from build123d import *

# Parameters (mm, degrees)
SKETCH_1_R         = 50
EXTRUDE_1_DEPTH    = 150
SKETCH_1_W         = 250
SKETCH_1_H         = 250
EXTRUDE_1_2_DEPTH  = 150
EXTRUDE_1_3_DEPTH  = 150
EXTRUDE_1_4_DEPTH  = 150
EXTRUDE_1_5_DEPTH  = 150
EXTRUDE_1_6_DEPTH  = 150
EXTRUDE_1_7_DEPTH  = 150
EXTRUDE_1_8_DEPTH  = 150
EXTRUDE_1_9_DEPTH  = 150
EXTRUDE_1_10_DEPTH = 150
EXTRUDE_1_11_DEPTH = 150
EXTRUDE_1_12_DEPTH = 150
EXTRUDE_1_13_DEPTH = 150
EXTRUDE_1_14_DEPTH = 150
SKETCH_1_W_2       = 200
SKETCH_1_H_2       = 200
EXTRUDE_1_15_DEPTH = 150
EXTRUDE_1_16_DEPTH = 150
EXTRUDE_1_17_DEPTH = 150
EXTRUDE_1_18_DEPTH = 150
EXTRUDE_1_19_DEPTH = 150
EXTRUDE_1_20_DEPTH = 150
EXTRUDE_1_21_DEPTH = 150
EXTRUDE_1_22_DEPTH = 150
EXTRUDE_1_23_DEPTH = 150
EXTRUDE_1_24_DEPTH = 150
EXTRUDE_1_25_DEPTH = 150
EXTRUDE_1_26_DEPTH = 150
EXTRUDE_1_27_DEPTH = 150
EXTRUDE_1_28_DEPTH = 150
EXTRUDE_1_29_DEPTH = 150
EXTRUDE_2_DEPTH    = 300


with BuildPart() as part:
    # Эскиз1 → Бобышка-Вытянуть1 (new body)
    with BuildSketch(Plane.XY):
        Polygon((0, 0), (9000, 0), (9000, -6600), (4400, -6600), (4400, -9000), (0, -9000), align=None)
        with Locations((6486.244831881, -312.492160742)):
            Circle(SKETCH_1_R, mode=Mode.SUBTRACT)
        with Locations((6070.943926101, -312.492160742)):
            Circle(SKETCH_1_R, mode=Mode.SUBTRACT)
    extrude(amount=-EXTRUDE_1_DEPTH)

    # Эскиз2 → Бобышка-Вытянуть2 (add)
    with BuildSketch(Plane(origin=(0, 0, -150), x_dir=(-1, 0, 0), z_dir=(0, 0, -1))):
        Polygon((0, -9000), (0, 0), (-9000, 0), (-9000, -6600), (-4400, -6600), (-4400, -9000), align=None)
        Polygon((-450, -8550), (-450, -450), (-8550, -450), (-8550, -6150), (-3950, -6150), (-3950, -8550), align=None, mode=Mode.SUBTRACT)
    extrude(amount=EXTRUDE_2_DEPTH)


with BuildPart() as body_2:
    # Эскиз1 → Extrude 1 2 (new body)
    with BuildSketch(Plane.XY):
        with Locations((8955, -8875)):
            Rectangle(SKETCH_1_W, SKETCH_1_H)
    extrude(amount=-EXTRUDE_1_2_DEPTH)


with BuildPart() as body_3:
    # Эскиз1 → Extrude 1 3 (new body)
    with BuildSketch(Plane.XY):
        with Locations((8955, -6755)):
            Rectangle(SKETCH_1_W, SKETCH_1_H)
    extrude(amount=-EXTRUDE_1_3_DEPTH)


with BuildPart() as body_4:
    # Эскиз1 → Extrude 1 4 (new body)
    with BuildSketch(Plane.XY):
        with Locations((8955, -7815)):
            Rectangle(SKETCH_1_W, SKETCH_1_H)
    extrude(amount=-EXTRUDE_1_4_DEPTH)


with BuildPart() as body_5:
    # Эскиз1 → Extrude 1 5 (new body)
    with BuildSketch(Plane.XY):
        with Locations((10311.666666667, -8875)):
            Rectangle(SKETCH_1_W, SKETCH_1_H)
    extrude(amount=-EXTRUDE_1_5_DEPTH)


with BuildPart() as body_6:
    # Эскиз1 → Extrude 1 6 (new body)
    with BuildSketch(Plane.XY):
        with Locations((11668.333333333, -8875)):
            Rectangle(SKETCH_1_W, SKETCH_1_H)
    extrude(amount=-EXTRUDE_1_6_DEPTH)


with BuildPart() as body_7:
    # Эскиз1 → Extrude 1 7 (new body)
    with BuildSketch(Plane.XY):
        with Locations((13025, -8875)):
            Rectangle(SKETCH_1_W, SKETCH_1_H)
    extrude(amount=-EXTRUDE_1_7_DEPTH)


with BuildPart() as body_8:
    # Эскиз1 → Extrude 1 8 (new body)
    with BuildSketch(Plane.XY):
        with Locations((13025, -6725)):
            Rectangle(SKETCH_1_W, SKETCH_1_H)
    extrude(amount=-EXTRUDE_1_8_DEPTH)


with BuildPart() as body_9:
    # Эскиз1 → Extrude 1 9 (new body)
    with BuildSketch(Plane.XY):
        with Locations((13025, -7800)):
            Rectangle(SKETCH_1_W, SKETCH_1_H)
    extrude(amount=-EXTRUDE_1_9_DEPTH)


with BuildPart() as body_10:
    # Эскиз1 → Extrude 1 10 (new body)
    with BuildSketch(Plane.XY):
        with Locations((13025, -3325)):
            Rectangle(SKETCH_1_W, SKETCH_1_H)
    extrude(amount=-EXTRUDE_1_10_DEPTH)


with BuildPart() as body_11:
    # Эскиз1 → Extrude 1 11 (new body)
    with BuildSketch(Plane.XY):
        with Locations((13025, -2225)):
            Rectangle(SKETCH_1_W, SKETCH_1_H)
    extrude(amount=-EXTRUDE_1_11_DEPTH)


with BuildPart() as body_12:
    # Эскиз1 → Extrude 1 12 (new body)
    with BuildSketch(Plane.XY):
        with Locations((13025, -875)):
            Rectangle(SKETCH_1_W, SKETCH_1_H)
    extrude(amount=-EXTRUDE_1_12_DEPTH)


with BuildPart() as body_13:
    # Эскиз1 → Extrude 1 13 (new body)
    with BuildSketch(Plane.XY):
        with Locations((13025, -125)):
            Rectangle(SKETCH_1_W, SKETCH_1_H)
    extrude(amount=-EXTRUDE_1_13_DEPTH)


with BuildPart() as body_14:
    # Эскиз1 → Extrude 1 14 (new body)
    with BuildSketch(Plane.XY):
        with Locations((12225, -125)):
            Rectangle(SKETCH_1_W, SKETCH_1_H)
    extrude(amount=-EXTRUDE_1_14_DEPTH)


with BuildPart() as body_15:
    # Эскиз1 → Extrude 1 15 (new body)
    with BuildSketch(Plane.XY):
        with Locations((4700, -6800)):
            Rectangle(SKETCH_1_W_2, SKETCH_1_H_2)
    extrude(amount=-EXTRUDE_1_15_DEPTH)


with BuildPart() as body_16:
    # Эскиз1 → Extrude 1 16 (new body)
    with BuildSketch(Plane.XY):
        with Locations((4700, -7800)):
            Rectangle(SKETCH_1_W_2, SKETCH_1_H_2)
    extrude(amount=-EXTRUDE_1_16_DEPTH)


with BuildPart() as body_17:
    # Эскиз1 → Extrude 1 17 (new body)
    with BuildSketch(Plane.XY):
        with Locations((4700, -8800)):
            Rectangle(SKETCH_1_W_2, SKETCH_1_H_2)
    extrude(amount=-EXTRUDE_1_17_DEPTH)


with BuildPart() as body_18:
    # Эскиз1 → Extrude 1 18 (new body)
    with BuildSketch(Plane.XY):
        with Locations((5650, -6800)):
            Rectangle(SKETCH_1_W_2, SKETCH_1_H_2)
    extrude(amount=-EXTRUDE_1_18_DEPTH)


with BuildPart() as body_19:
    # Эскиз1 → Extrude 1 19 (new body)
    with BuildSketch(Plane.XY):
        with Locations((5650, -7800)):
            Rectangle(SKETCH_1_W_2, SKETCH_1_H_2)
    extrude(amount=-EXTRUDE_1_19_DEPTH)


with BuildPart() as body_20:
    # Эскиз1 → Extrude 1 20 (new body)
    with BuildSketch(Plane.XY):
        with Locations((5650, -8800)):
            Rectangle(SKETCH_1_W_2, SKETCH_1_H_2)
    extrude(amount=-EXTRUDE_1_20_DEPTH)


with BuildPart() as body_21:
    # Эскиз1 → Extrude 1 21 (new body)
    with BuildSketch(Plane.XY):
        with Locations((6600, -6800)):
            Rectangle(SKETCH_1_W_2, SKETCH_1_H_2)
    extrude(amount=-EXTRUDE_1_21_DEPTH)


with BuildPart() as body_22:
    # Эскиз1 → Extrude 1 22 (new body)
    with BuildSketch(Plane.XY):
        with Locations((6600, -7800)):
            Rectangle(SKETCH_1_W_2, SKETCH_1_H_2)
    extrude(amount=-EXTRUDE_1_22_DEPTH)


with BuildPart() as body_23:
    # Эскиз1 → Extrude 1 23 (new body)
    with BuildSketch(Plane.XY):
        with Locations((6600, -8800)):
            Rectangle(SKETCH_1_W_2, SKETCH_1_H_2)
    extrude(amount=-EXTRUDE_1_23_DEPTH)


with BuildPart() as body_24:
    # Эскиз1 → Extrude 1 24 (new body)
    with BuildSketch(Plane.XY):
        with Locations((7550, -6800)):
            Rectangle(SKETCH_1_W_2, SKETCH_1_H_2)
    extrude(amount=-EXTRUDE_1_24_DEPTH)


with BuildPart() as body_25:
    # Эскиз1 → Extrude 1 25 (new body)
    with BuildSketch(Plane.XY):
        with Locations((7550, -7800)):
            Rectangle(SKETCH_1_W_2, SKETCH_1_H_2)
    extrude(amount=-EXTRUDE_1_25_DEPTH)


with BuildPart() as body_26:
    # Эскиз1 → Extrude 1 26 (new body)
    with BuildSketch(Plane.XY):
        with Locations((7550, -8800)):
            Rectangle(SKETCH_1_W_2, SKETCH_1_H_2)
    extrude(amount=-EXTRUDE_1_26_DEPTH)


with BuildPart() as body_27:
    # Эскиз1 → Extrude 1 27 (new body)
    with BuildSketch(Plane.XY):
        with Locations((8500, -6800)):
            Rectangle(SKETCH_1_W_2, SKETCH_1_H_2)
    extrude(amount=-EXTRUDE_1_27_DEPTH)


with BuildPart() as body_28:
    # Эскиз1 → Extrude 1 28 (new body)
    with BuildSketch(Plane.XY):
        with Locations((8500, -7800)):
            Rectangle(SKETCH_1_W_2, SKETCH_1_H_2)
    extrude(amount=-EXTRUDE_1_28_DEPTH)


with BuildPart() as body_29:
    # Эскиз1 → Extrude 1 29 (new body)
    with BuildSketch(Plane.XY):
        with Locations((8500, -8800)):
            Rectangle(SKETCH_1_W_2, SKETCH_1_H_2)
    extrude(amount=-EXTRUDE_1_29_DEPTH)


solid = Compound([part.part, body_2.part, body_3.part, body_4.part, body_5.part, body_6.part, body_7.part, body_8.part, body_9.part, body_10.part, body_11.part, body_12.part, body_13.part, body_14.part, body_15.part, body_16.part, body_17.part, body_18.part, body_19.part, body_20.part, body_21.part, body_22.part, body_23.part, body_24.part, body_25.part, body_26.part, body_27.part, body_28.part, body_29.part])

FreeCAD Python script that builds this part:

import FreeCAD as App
import Part
import Sketcher

V = App.Vector


def add_polygon(sketch, points):
    """Adds a closed chain of lines whose ends are joined by coincident constraints."""
    first, n = sketch.GeometryCount, len(points)
    for a, b in zip(points, points[1:] + points[:1]):
        sketch.addGeometry(Part.LineSegment(App.Vector(*a, 0), App.Vector(*b, 0)), False)
    for i in range(n):
        sketch.addConstraint(Sketcher.Constraint("Coincident", first + i, 2, first + (i + 1) % n, 1))

doc = App.newDocument("Part")
body = doc.addObject("PartDesign::Body", "Body")

# Sketch on XY plane
sketch1 = body.newObject("Sketcher::SketchObject", "Sketch")
sketch1.AttachmentSupport = (doc.getObject("XY_Plane"), [""])
sketch1.MapMode = "FlatFace"
add_polygon(sketch1, [(9000, 0), (0, 0), (0, -9000), (4400, -9000), (4400, -6600), (9000, -6600)])  # lines 0-5
sketch1.addGeometry(Part.Circle(V(6486, -312, 0), V(0, 0, 1), 50), False)  # 6
sketch1.addGeometry(Part.Circle(V(6071, -312, 0), V(0, 0, 1), 50), False)  # 7
sketch1.addConstraint([
    Sketcher.Constraint("Horizontal", 0),
    Sketcher.Constraint("Vertical", 1),
    Sketcher.Constraint("Horizontal", 2),
    Sketcher.Constraint("Vertical", 3),
    Sketcher.Constraint("Horizontal", 4),
    Sketcher.Constraint("Vertical", 5),
    Sketcher.Constraint("Coincident", 0, 2, -1, 1),
    Sketcher.Constraint("Equal", 6, 7),
    Sketcher.Constraint("Horizontal", 6, 3, 7, 3),
    Sketcher.Constraint("Equal", 0, 1),
    Sketcher.Constraint("Diameter", 6, 100.0),
    Sketcher.Constraint("DistanceX", 0, 2, 0, 1, 9000.0),
    Sketcher.Constraint("DistanceX", 2, 1, 2, 2, 4400.0),
    Sketcher.Constraint("DistanceY", 3, 1, 3, 2, 2400.0),
    Sketcher.Constraint("DistanceX", -1, 1, 6, 3, 6486.244832),
    Sketcher.Constraint("DistanceY", 6, 3, -1, 1, 312.492161),
    Sketcher.Constraint("DistanceX", -1, 1, 7, 3, 6070.943926),
])
pad1 = body.newObject("PartDesign::Pad", "Pad")
pad1.Profile = sketch1
pad1.Length = 150
pad1.Reversed = True

# Sketch on XY plane
sketch2 = body.newObject("Sketcher::SketchObject", "Sketch001")
sketch2.AttachmentSupport = (doc.getObject("XY_Plane"), [""])
sketch2.MapMode = "FlatFace"
sketch2.AttachmentOffset = App.Placement(V(0, 0, -150), App.Rotation())
add_polygon(sketch2, [(0, -9000), (0, 0), (9000, 0), (9000, -6600), (4400, -6600), (4400, -9000)])  # lines 0-5
add_polygon(sketch2, [(450, -450), (450, -8550), (3950, -8550), (3950, -6150), (8550, -6150), (8550, -450)])  # lines 6-11
sketch2.addConstraint([
    Sketcher.Constraint("Vertical", 0),
    Sketcher.Constraint("Horizontal", 1),
    Sketcher.Constraint("Vertical", 2),
    Sketcher.Constraint("Horizontal", 3),
    Sketcher.Constraint("Vertical", 4),
    Sketcher.Constraint("Horizontal", 5),
    Sketcher.Constraint("Vertical", 6),
    Sketcher.Constraint("Horizontal", 7),
    Sketcher.Constraint("Vertical", 8),
    Sketcher.Constraint("Horizontal", 9),
    Sketcher.Constraint("Vertical", 10),
    Sketcher.Constraint("Horizontal", 11),
    Sketcher.Constraint("Coincident", 0, 2, -1, 1),
    Sketcher.Constraint("Equal", 3, 9),
    Sketcher.Constraint("Equal", 1, 0),
    Sketcher.Constraint("Equal", 11, 6),
    Sketcher.Constraint("Equal", 4, 8),
    Sketcher.Constraint("DistanceX", 1, 1, 1, 2, 9000.0),
    Sketcher.Constraint("DistanceX", 3, 2, 3, 1, 4600.0),
    Sketcher.Constraint("DistanceX", 7, 1, 7, 2, 3500.0),
    Sketcher.Constraint("DistanceY", 2, 2, 2, 1, 6600.0),
    Sketcher.Constraint("DistanceX", -1, 1, 6, 2, 450.0),
    Sketcher.Constraint("DistanceY", 6, 2, -1, 1, 8550.0),
])
pad2 = body.newObject("PartDesign::Pad", "Pad001")
pad2.Profile = sketch2
pad2.Length = 300
pad2.Reversed = True
body2 = doc.addObject("PartDesign::Body", "Body001")

# Sketch on XY plane
sketch3 = body2.newObject("Sketcher::SketchObject", "Sketch002")
sketch3.AttachmentSupport = (doc.getObject("XY_Plane001"), [""])
sketch3.MapMode = "FlatFace"
add_polygon(sketch3, [(8830, -8750), (8830, -9000), (9080, -9000), (9080, -8750)])  # lines 0-3
sketch3.addConstraint([
    Sketcher.Constraint("Vertical", 0),
    Sketcher.Constraint("Horizontal", 1),
    Sketcher.Constraint("Vertical", 2),
    Sketcher.Constraint("Horizontal", 3),
    Sketcher.Constraint("Equal", 3, 0),
    Sketcher.Constraint("DistanceX", 1, 1, 1, 2, 250.0),
    Sketcher.Constraint("DistanceX", -1, 1, 0, 2, 8830.0),
    Sketcher.Constraint("DistanceY", 0, 2, -1, 1, 9000.0),
])
pad3 = body2.newObject("PartDesign::Pad", "Pad002")
pad3.Profile = sketch3
pad3.Length = 150
pad3.Reversed = True
body3 = doc.addObject("PartDesign::Body", "Body002")

# Sketch on XY plane
sketch4 = body3.newObject("Sketcher::SketchObject", "Sketch003")
sketch4.AttachmentSupport = (doc.getObject("XY_Plane002"), [""])
sketch4.MapMode = "FlatFace"
add_polygon(sketch4, [(8830, -6630), (8830, -6880), (9080, -6880), (9080, -6630)])  # lines 0-3
sketch4.addConstraint([
    Sketcher.Constraint("Vertical", 0),
    Sketcher.Constraint("Horizontal", 1),
    Sketcher.Constraint("Vertical", 2),
    Sketcher.Constraint("Horizontal", 3),
    Sketcher.Constraint("Equal", 3, 0),
    Sketcher.Constraint("DistanceX", 1, 1, 1, 2, 250.0),
    Sketcher.Constraint("DistanceX", -1, 1, 0, 2, 8830.0),
    Sketcher.Constraint("DistanceY", 0, 2, -1, 1, 6880.0),
])
pad4 = body3.newObject("PartDesign::Pad", "Pad003")
pad4.Profile = sketch4
pad4.Length = 150
pad4.Reversed = True
body4 = doc.addObject("PartDesign::Body", "Body003")

# Sketch on XY plane
sketch5 = body4.newObject("Sketcher::SketchObject", "Sketch004")
sketch5.AttachmentSupport = (doc.getObject("XY_Plane003"), [""])
sketch5.MapMode = "FlatFace"
add_polygon(sketch5, [(8830, -7690), (8830, -7940), (9080, -7940), (9080, -7690)])  # lines 0-3
sketch5.addConstraint([
    Sketcher.Constraint("Vertical", 0),
    Sketcher.Constraint("Horizontal", 1),
    Sketcher.Constraint("Vertical", 2),
    Sketcher.Constraint("Horizontal", 3),
    Sketcher.Constraint("Equal", 3, 0),
    Sketcher.Constraint("DistanceX", 1, 1, 1, 2, 250.0),
    Sketcher.Constraint("DistanceX", -1, 1, 0, 2, 8830.0),
    Sketcher.Constraint("DistanceY", 0, 2, -1, 1, 7940.0),
])
pad5 = body4.newObject("PartDesign::Pad", "Pad004")
pad5.Profile = sketch5
pad5.Length = 150
pad5.Reversed = True
body5 = doc.addObject("PartDesign::Body", "Body004")

# Sketch on XY plane
sketch6 = body5.newObject("Sketcher::SketchObject", "Sketch005")
sketch6.AttachmentSupport = (doc.getObject("XY_Plane004"), [""])
sketch6.MapMode = "FlatFace"
add_polygon(sketch6, [(10187, -8750), (10187, -9000), (10437, -9000), (10437, -8750)])  # lines 0-3
sketch6.addConstraint([
    Sketcher.Constraint("Vertical", 0),
    Sketcher.Constraint("Horizontal", 1),
    Sketcher.Constraint("Vertical", 2),
    Sketcher.Constraint("Horizontal", 3),
    Sketcher.Constraint("Equal", 3, 0),
    Sketcher.Constraint("DistanceX", 1, 1, 1, 2, 250.0),
    Sketcher.Constraint("DistanceY", 0, 2, -1, 1, 9000.0),
    Sketcher.Constraint("DistanceX", -1, 1, 0, 2, 10186.666667),
])
pad6 = body5.newObject("PartDesign::Pad", "Pad005")
pad6.Profile = sketch6
pad6.Length = 150
pad6.Reversed = True
body6 = doc.addObject("PartDesign::Body", "Body005")

# Sketch on XY plane
sketch7 = body6.newObject("Sketcher::SketchObject", "Sketch006")
sketch7.AttachmentSupport = (doc.getObject("XY_Plane005"), [""])
sketch7.MapMode = "FlatFace"
add_polygon(sketch7, [(11543, -8750), (11543, -9000), (11793, -9000), (11793, -8750)])  # lines 0-3
sketch7.addConstraint([
    Sketcher.Constraint("Vertical", 0),
    Sketcher.Constraint("Horizontal", 1),
    Sketcher.Constraint("Vertical", 2),
    Sketcher.Constraint("Horizontal", 3),
    Sketcher.Constraint("Equal", 3, 0),
    Sketcher.Constraint("DistanceX", 1, 1, 1, 2, 250.0),
    Sketcher.Constraint("DistanceY", 0, 2, -1, 1, 9000.0),
    Sketcher.Constraint("DistanceX", -1, 1, 0, 2, 11543.333333),
])
pad7 = body6.newObject("PartDesign::Pad", "Pad006")
pad7.Profile = sketch7
pad7.Length = 150
pad7.Reversed = True
body7 = doc.addObject("PartDesign::Body", "Body006")

# Sketch on XY plane
sketch8 = body7.newObject("Sketcher::SketchObject", "Sketch007")
sketch8.AttachmentSupport = (doc.getObject("XY_Plane006"), [""])
sketch8.MapMode = "FlatFace"
add_polygon(sketch8, [(12900, -8750), (12900, -9000), (13150, -9000), (13150, -8750)])  # lines 0-3
sketch8.addConstraint([
    Sketcher.Constraint("Vertical", 0),
    Sketcher.Constraint("Horizontal", 1),
    Sketcher.Constraint("Vertical", 2),
    Sketcher.Constraint("Horizontal", 3),
    Sketcher.Constraint("Equal", 3, 0),
    Sketcher.Constraint("DistanceX", 1, 1, 1, 2, 250.0),
    Sketcher.Constraint("DistanceX", -1, 1, 0, 2, 12900.0),
    Sketcher.Constraint("DistanceY", 0, 2, -1, 1, 9000.0),
])
pad8 = body7.newObject("PartDesign::Pad", "Pad007")
pad8.Profile = sketch8
pad8.Length = 150
pad8.Reversed = True
body8 = doc.addObject("PartDesign::Body", "Body007")

# Sketch on XY plane
sketch9 = body8.newObject("Sketcher::SketchObject", "Sketch008")
sketch9.AttachmentSupport = (doc.getObject("XY_Plane007"), [""])
sketch9.MapMode = "FlatFace"
add_polygon(sketch9, [(12900, -6600), (12900, -6850), (13150, -6850), (13150, -6600)])  # lines 0-3
sketch9.addConstraint([
    Sketcher.Constraint("Vertical", 0),
    Sketcher.Constraint("Horizontal", 1),
    Sketcher.Constraint("Vertical", 2),
    Sketcher.Constraint("Horizontal", 3),
    Sketcher.Constraint("Equal", 3, 0),
    Sketcher.Constraint("DistanceX", 1, 1, 1, 2, 250.0),
    Sketcher.Constraint("DistanceX", -1, 1, 0, 2, 12900.0),
    Sketcher.Constraint("DistanceY", 0, 2, -1, 1, 6850.0),
])
pad9 = body8.newObject("PartDesign::Pad", "Pad008")
pad9.Profile = sketch9
pad9.Length = 150
pad9.Reversed = True
body9 = doc.addObject("PartDesign::Body", "Body008")

# Sketch on XY plane
sketch10 = body9.newObject("Sketcher::SketchObject", "Sketch009")
sketch10.AttachmentSupport = (doc.getObject("XY_Plane008"), [""])
sketch10.MapMode = "FlatFace"
add_polygon(sketch10, [(12900, -7675), (12900, -7925), (13150, -7925), (13150, -7675)])  # lines 0-3
sketch10.addConstraint([
    Sketcher.Constraint("Vertical", 0),
    Sketcher.Constraint("Horizontal", 1),
    Sketcher.Constraint("Vertical", 2),
    Sketcher.Constraint("Horizontal", 3),
    Sketcher.Constraint("Equal", 3, 0),
    Sketcher.Constraint("DistanceX", 1, 1, 1, 2, 250.0),
    Sketcher.Constraint("DistanceX", -1, 1, 0, 2, 12900.0),
    Sketcher.Constraint("DistanceY", 0, 2, -1, 1, 7925.0),
])
pad10 = body9.newObject("PartDesign::Pad", "Pad009")
pad10.Profile = sketch10
pad10.Length = 150
pad10.Reversed = True
body10 = doc.addObject("PartDesign::Body", "Body009")

# Sketch on XY plane
sketch11 = body10.newObject("Sketcher::SketchObject", "Sketch010")
sketch11.AttachmentSupport = (doc.getObject("XY_Plane009"), [""])
sketch11.MapMode = "FlatFace"
add_polygon(sketch11, [(12900, -3200), (12900, -3450), (13150, -3450), (13150, -3200)])  # lines 0-3
sketch11.addConstraint([
    Sketcher.Constraint("Vertical", 0),
    Sketcher.Constraint("Horizontal", 1),
    Sketcher.Constraint("Vertical", 2),
    Sketcher.Constraint("Horizontal", 3),
    Sketcher.Constraint("Equal", 3, 0),
    Sketcher.Constraint("DistanceX", 1, 1, 1, 2, 250.0),
    Sketcher.Constraint("DistanceX", -1, 1, 0, 2, 12900.0),
    Sketcher.Constraint("DistanceY", 0, 2, -1, 1, 3450.0),
])
pad11 = body10.newObject("PartDesign::Pad", "Pad010")
pad11.Profile = sketch11
pad11.Length = 150
pad11.Reversed = True
body11 = doc.addObject("PartDesign::Body", "Body010")

# Sketch on XY plane
sketch12 = body11.newObject("Sketcher::SketchObject", "Sketch011")
sketch12.AttachmentSupport = (doc.getObject("XY_Plane010"), [""])
sketch12.MapMode = "FlatFace"
add_polygon(sketch12, [(12900, -2100), (12900, -2350), (13150, -2350), (13150, -2100)])  # lines 0-3
sketch12.addConstraint([
    Sketcher.Constraint("Vertical", 0),
    Sketcher.Constraint("Horizontal", 1),
    Sketcher.Constraint("Vertical", 2),
    Sketcher.Constraint("Horizontal", 3),
    Sketcher.Constraint("Equal", 3, 0),
    Sketcher.Constraint("DistanceX", 1, 1, 1, 2, 250.0),
    Sketcher.Constraint("DistanceX", -1, 1, 0, 2, 12900.0),
    Sketcher.Constraint("DistanceY", 0, 2, -1, 1, 2350.0),
])
pad12 = body11.newObject("PartDesign::Pad", "Pad011")
pad12.Profile = sketch12
pad12.Length = 150
pad12.Reversed = True
body12 = doc.addObject("PartDesign::Body", "Body011")

# Sketch on XY plane
sketch13 = body12.newObject("Sketcher::SketchObject", "Sketch012")
sketch13.AttachmentSupport = (doc.getObject("XY_Plane011"), [""])
sketch13.MapMode = "FlatFace"
add_polygon(sketch13, [(12900, -750), (12900, -1000), (13150, -1000), (13150, -750)])  # lines 0-3
sketch13.addConstraint([
    Sketcher.Constraint("Vertical", 0),
    Sketcher.Constraint("Horizontal", 1),
    Sketcher.Constraint("Vertical", 2),
    Sketcher.Constraint("Horizontal", 3),
    Sketcher.Constraint("Equal", 3, 0),
    Sketcher.Constraint("DistanceX", 1, 1, 1, 2, 250.0),
    Sketcher.Constraint("DistanceX", -1, 1, 0, 2, 12900.0),
    Sketcher.Constraint("DistanceY", 0, 2, -1, 1, 1000.0),
])
pad13 = body12.newObject("PartDesign::Pad", "Pad012")
pad13.Profile = sketch13
pad13.Length = 150
pad13.Reversed = True
body13 = doc.addObject("PartDesign::Body", "Body012")

# Sketch on XY plane
sketch14 = body13.newObject("Sketcher::SketchObject", "Sketch013")
sketch14.AttachmentSupport = (doc.getObject("XY_Plane012"), [""])
sketch14.MapMode = "FlatFace"
add_polygon(sketch14, [(12900, 0), (12900, -250), (13150, -250), (13150, 0)])  # lines 0-3
sketch14.addConstraint([
    Sketcher.Constraint("Vertical", 0),
    Sketcher.Constraint("Horizontal", 1),
    Sketcher.Constraint("Vertical", 2),
    Sketcher.Constraint("Horizontal", 3),
    Sketcher.Constraint("PointOnObject", 2, 2, -1),
    Sketcher.Constraint("Equal", 3, 0),
    Sketcher.Constraint("DistanceX", 1, 1, 1, 2, 250.0),
    Sketcher.Constraint("DistanceX", -1, 1, 0, 2, 12900.0),
])
pad14 = body13.newObject("PartDesign::Pad", "Pad013")
pad14.Profile = sketch14
pad14.Length = 150
pad14.Reversed = True
body14 = doc.addObject("PartDesign::Body", "Body013")

# Sketch on XY plane
sketch15 = body14.newObject("Sketcher::SketchObject", "Sketch014")
sketch15.AttachmentSupport = (doc.getObject("XY_Plane013"), [""])
sketch15.MapMode = "FlatFace"
add_polygon(sketch15, [(12100, 0), (12100, -250), (12350, -250), (12350, 0)])  # lines 0-3
sketch15.addConstraint([
    Sketcher.Constraint("Vertical", 0),
    Sketcher.Constraint("Horizontal", 1),
    Sketcher.Constraint("Vertical", 2),
    Sketcher.Constraint("Horizontal", 3),
    Sketcher.Constraint("PointOnObject", 2, 2, -1),
    Sketcher.Constraint("Equal", 3, 0),
    Sketcher.Constraint("DistanceX", 1, 1, 1, 2, 250.0),
    Sketcher.Constraint("DistanceX", -1, 1, 0, 2, 12100.0),
])
pad15 = body14.newObject("PartDesign::Pad", "Pad014")
pad15.Profile = sketch15
pad15.Length = 150
pad15.Reversed = True
body15 = doc.addObject("PartDesign::Body", "Body014")

# Sketch on XY plane
sketch16 = body15.newObject("Sketcher::SketchObject", "Sketch015")
sketch16.AttachmentSupport = (doc.getObject("XY_Plane014"), [""])
sketch16.MapMode = "FlatFace"
add_polygon(sketch16, [(4600, -6700), (4600, -6900), (4800, -6900), (4800, -6700)])  # lines 0-3
sketch16.addConstraint([
    Sketcher.Constraint("Vertical", 0),
    Sketcher.Constraint("Horizontal", 1),
    Sketcher.Constraint("Vertical", 2),
    Sketcher.Constraint("Horizontal", 3),
    Sketcher.Constraint("Equal", 3, 0),
    Sketcher.Constraint("DistanceX", 1, 1, 1, 2, 200.0),
    Sketcher.Constraint("DistanceX", -1, 1, 0, 2, 4600.0),
    Sketcher.Constraint("DistanceY", 0, 2, -1, 1, 6900.0),
])
pad16 = body15.newObject("PartDesign::Pad", "Pad015")
pad16.Profile = sketch16
pad16.Length = 150
pad16.Reversed = True
body16 = doc.addObject("PartDesign::Body", "Body015")

# Sketch on XY plane
sketch17 = body16.newObject("Sketcher::SketchObject", "Sketch016")
sketch17.AttachmentSupport = (doc.getObject("XY_Plane015"), [""])
sketch17.MapMode = "FlatFace"
add_polygon(sketch17, [(4600, -7700), (4600, -7900), (4800, -7900), (4800, -7700)])  # lines 0-3
sketch17.addConstraint([
    Sketcher.Constraint("Vertical", 0),
    Sketcher.Constraint("Horizontal", 1),
    Sketcher.Constraint("Vertical", 2),
    Sketcher.Constraint("Horizontal", 3),
    Sketcher.Constraint("Equal", 3, 0),
    Sketcher.Constraint("DistanceX", 1, 1, 1, 2, 200.0),
    Sketcher.Constraint("DistanceX", -1, 1, 0, 2, 4600.0),
    Sketcher.Constraint("DistanceY", 0, 2, -1, 1, 7900.0),
])
pad17 = body16.newObject("PartDesign::Pad", "Pad016")
pad17.Profile = sketch17
pad17.Length = 150
pad17.Reversed = True
body17 = doc.addObject("PartDesign::Body", "Body016")

# Sketch on XY plane
sketch18 = body17.newObject("Sketcher::SketchObject", "Sketch017")
sketch18.AttachmentSupport = (doc.getObject("XY_Plane016"), [""])
sketch18.MapMode = "FlatFace"
add_polygon(sketch18, [(4600, -8700), (4600, -8900), (4800, -8900), (4800, -8700)])  # lines 0-3
sketch18.addConstraint([
    Sketcher.Constraint("Vertical", 0),
    Sketcher.Constraint("Horizontal", 1),
    Sketcher.Constraint("Vertical", 2),
    Sketcher.Constraint("Horizontal", 3),
    Sketcher.Constraint("Equal", 3, 0),
    Sketcher.Constraint("DistanceX", 1, 1, 1, 2, 200.0),
    Sketcher.Constraint("DistanceX", -1, 1, 0, 2, 4600.0),
    Sketcher.Constraint("DistanceY", 0, 2, -1, 1, 8900.0),
])
pad18 = body17.newObject("PartDesign::Pad", "Pad017")
pad18.Profile = sketch18
pad18.Length = 150
pad18.Reversed = True
body18 = doc.addObject("PartDesign::Body", "Body017")

# Sketch on XY plane
sketch19 = body18.newObject("Sketcher::SketchObject", "Sketch018")
sketch19.AttachmentSupport = (doc.getObject("XY_Plane017"), [""])
sketch19.MapMode = "FlatFace"
add_polygon(sketch19, [(5550, -6700), (5550, -6900), (5750, -6900), (5750, -6700)])  # lines 0-3
sketch19.addConstraint([
    Sketcher.Constraint("Vertical", 0),
    Sketcher.Constraint("Horizontal", 1),
    Sketcher.Constraint("Vertical", 2),
    Sketcher.Constraint("Horizontal", 3),
    Sketcher.Constraint("Equal", 3, 0),
    Sketcher.Constraint("DistanceX", 1, 1, 1, 2, 200.0),
    Sketcher.Constraint("DistanceX", -1, 1, 0, 2, 5550.0),
    Sketcher.Constraint("DistanceY", 0, 2, -1, 1, 6900.0),
])
pad19 = body18.newObject("PartDesign::Pad", "Pad018")
pad19.Profile = sketch19
pad19.Length = 150
pad19.Reversed = True
body19 = doc.addObject("PartDesign::Body", "Body018")

# Sketch on XY plane
sketch20 = body19.newObject("Sketcher::SketchObject", "Sketch019")
sketch20.AttachmentSupport = (doc.getObject("XY_Plane018"), [""])
sketch20.MapMode = "FlatFace"
add_polygon(sketch20, [(5550, -7700), (5550, -7900), (5750, -7900), (5750, -7700)])  # lines 0-3
sketch20.addConstraint([
    Sketcher.Constraint("Vertical", 0),
    Sketcher.Constraint("Horizontal", 1),
    Sketcher.Constraint("Vertical", 2),
    Sketcher.Constraint("Horizontal", 3),
    Sketcher.Constraint("Equal", 3, 0),
    Sketcher.Constraint("DistanceX", 1, 1, 1, 2, 200.0),
    Sketcher.Constraint("DistanceX", -1, 1, 0, 2, 5550.0),
    Sketcher.Constraint("DistanceY", 0, 2, -1, 1, 7900.0),
])
pad20 = body19.newObject("PartDesign::Pad", "Pad019")
pad20.Profile = sketch20
pad20.Length = 150
pad20.Reversed = True
body20 = doc.addObject("PartDesign::Body", "Body019")

# Sketch on XY plane
sketch21 = body20.newObject("Sketcher::SketchObject", "Sketch020")
sketch21.AttachmentSupport = (doc.getObject("XY_Plane019"), [""])
sketch21.MapMode = "FlatFace"
add_polygon(sketch21, [(5550, -8700), (5550, -8900), (5750, -8900), (5750, -8700)])  # lines 0-3
sketch21.addConstraint([
    Sketcher.Constraint("Vertical", 0),
    Sketcher.Constraint("Horizontal", 1),
    Sketcher.Constraint("Vertical", 2),
    Sketcher.Constraint("Horizontal", 3),
    Sketcher.Constraint("Equal", 3, 0),
    Sketcher.Constraint("DistanceX", 1, 1, 1, 2, 200.0),
    Sketcher.Constraint("DistanceX", -1, 1, 0, 2, 5550.0),
    Sketcher.Constraint("DistanceY", 0, 2, -1, 1, 8900.0),
])
pad21 = body20.newObject("PartDesign::Pad", "Pad020")
pad21.Profile = sketch21
pad21.Length = 150
pad21.Reversed = True
body21 = doc.addObject("PartDesign::Body", "Body020")

# Sketch on XY plane
sketch22 = body21.newObject("Sketcher::SketchObject", "Sketch021")
sketch22.AttachmentSupport = (doc.getObject("XY_Plane020"), [""])
sketch22.MapMode = "FlatFace"
add_polygon(sketch22, [(6500, -6700), (6500, -6900), (6700, -6900), (6700, -6700)])  # lines 0-3
sketch22.addConstraint([
    Sketcher.Constraint("Vertical", 0),
    Sketcher.Constraint("Horizontal", 1),
    Sketcher.Constraint("Vertical", 2),
    Sketcher.Constraint("Horizontal", 3),
    Sketcher.Constraint("Equal", 3, 0),
    Sketcher.Constraint("DistanceX", 1, 1, 1, 2, 200.0),
    Sketcher.Constraint("DistanceX", -1, 1, 0, 2, 6500.0),
    Sketcher.Constraint("DistanceY", 0, 2, -1, 1, 6900.0),
])
pad22 = body21.newObject("PartDesign::Pad", "Pad021")
pad22.Profile = sketch22
pad22.Length = 150
pad22.Reversed = True
body22 = doc.addObject("PartDesign::Body", "Body021")

# Sketch on XY plane
sketch23 = body22.newObject("Sketcher::SketchObject", "Sketch022")
sketch23.AttachmentSupport = (doc.getObject("XY_Plane021"), [""])
sketch23.MapMode = "FlatFace"
add_polygon(sketch23, [(6500, -7700), (6500, -7900), (6700, -7900), (6700, -7700)])  # lines 0-3
sketch23.addConstraint([
    Sketcher.Constraint("Vertical", 0),
    Sketcher.Constraint("Horizontal", 1),
    Sketcher.Constraint("Vertical", 2),
    Sketcher.Constraint("Horizontal", 3),
    Sketcher.Constraint("Equal", 3, 0),
    Sketcher.Constraint("DistanceX", 1, 1, 1, 2, 200.0),
    Sketcher.Constraint("DistanceX", -1, 1, 0, 2, 6500.0),
    Sketcher.Constraint("DistanceY", 0, 2, -1, 1, 7900.0),
])
pad23 = body22.newObject("PartDesign::Pad", "Pad022")
pad23.Profile = sketch23
pad23.Length = 150
pad23.Reversed = True
body23 = doc.addObject("PartDesign::Body", "Body022")

# Sketch on XY plane
sketch24 = body23.newObject("Sketcher::SketchObject", "Sketch023")
sketch24.AttachmentSupport = (doc.getObject("XY_Plane022"), [""])
sketch24.MapMode = "FlatFace"
add_polygon(sketch24, [(6500, -8700), (6500, -8900), (6700, -8900), (6700, -8700)])  # lines 0-3
sketch24.addConstraint([
    Sketcher.Constraint("Vertical", 0),
    Sketcher.Constraint("Horizontal", 1),
    Sketcher.Constraint("Vertical", 2),
    Sketcher.Constraint("Horizontal", 3),
    Sketcher.Constraint("Equal", 3, 0),
    Sketcher.Constraint("DistanceX", 1, 1, 1, 2, 200.0),
    Sketcher.Constraint("DistanceX", -1, 1, 0, 2, 6500.0),
    Sketcher.Constraint("DistanceY", 0, 2, -1, 1, 8900.0),
])
pad24 = body23.newObject("PartDesign::Pad", "Pad023")
pad24.Profile = sketch24
pad24.Length = 150
pad24.Reversed = True
body24 = doc.addObject("PartDesign::Body", "Body023")

# Sketch on XY plane
sketch25 = body24.newObject("Sketcher::SketchObject", "Sketch024")
sketch25.AttachmentSupport = (doc.getObject("XY_Plane023"), [""])
sketch25.MapMode = "FlatFace"
add_polygon(sketch25, [(7450, -6700), (7450, -6900), (7650, -6900), (7650, -6700)])  # lines 0-3
sketch25.addConstraint([
    Sketcher.Constraint("Vertical", 0),
    Sketcher.Constraint("Horizontal", 1),
    Sketcher.Constraint("Vertical", 2),
    Sketcher.Constraint("Horizontal", 3),
    Sketcher.Constraint("Equal", 3, 0),
    Sketcher.Constraint("DistanceX", 1, 1, 1, 2, 200.0),
    Sketcher.Constraint("DistanceX", -1, 1, 0, 2, 7450.0),
    Sketcher.Constraint("DistanceY", 0, 2, -1, 1, 6900.0),
])
pad25 = body24.newObject("PartDesign::Pad", "Pad024")
pad25.Profile = sketch25
pad25.Length = 150
pad25.Reversed = True
body25 = doc.addObject("PartDesign::Body", "Body024")

# Sketch on XY plane
sketch26 = body25.newObject("Sketcher::SketchObject", "Sketch025")
sketch26.AttachmentSupport = (doc.getObject("XY_Plane024"), [""])
sketch26.MapMode = "FlatFace"
add_polygon(sketch26, [(7450, -7700), (7450, -7900), (7650, -7900), (7650, -7700)])  # lines 0-3
sketch26.addConstraint([
    Sketcher.Constraint("Vertical", 0),
    Sketcher.Constraint("Horizontal", 1),
    Sketcher.Constraint("Vertical", 2),
    Sketcher.Constraint("Horizontal", 3),
    Sketcher.Constraint("Equal", 3, 0),
    Sketcher.Constraint("DistanceX", 1, 1, 1, 2, 200.0),
    Sketcher.Constraint("DistanceX", -1, 1, 0, 2, 7450.0),
    Sketcher.Constraint("DistanceY", 0, 2, -1, 1, 7900.0),
])
pad26 = body25.newObject("PartDesign::Pad", "Pad025")
pad26.Profile = sketch26
pad26.Length = 150
pad26.Reversed = True
body26 = doc.addObject("PartDesign::Body", "Body025")

# Sketch on XY plane
sketch27 = body26.newObject("Sketcher::SketchObject", "Sketch026")
sketch27.AttachmentSupport = (doc.getObject("XY_Plane025"), [""])
sketch27.MapMode = "FlatFace"
add_polygon(sketch27, [(7450, -8700), (7450, -8900), (7650, -8900), (7650, -8700)])  # lines 0-3
sketch27.addConstraint([
    Sketcher.Constraint("Vertical", 0),
    Sketcher.Constraint("Horizontal", 1),
    Sketcher.Constraint("Vertical", 2),
    Sketcher.Constraint("Horizontal", 3),
    Sketcher.Constraint("Equal", 3, 0),
    Sketcher.Constraint("DistanceX", 1, 1, 1, 2, 200.0),
    Sketcher.Constraint("DistanceX", -1, 1, 0, 2, 7450.0),
    Sketcher.Constraint("DistanceY", 0, 2, -1, 1, 8900.0),
])
pad27 = body26.newObject("PartDesign::Pad", "Pad026")
pad27.Profile = sketch27
pad27.Length = 150
pad27.Reversed = True
body27 = doc.addObject("PartDesign::Body", "Body026")

# Sketch on XY plane
sketch28 = body27.newObject("Sketcher::SketchObject", "Sketch027")
sketch28.AttachmentSupport = (doc.getObject("XY_Plane026"), [""])
sketch28.MapMode = "FlatFace"
add_polygon(sketch28, [(8400, -6700), (8400, -6900), (8600, -6900), (8600, -6700)])  # lines 0-3
sketch28.addConstraint([
    Sketcher.Constraint("Vertical", 0),
    Sketcher.Constraint("Horizontal", 1),
    Sketcher.Constraint("Vertical", 2),
    Sketcher.Constraint("Horizontal", 3),
    Sketcher.Constraint("Equal", 3, 0),
    Sketcher.Constraint("DistanceX", 1, 1, 1, 2, 200.0),
    Sketcher.Constraint("DistanceX", -1, 1, 0, 2, 8400.0),
    Sketcher.Constraint("DistanceY", 0, 2, -1, 1, 6900.0),
])
pad28 = body27.newObject("PartDesign::Pad", "Pad027")
pad28.Profile = sketch28
pad28.Length = 150
pad28.Reversed = True
body28 = doc.addObject("PartDesign::Body", "Body027")

# Sketch on XY plane
sketch29 = body28.newObject("Sketcher::SketchObject", "Sketch028")
sketch29.AttachmentSupport = (doc.getObject("XY_Plane027"), [""])
sketch29.MapMode = "FlatFace"
add_polygon(sketch29, [(8400, -7700), (8400, -7900), (8600, -7900), (8600, -7700)])  # lines 0-3
sketch29.addConstraint([
    Sketcher.Constraint("Vertical", 0),
    Sketcher.Constraint("Horizontal", 1),
    Sketcher.Constraint("Vertical", 2),
    Sketcher.Constraint("Horizontal", 3),
    Sketcher.Constraint("Equal", 3, 0),
    Sketcher.Constraint("DistanceX", 1, 1, 1, 2, 200.0),
    Sketcher.Constraint("DistanceX", -1, 1, 0, 2, 8400.0),
    Sketcher.Constraint("DistanceY", 0, 2, -1, 1, 7900.0),
])
pad29 = body28.newObject("PartDesign::Pad", "Pad028")
pad29.Profile = sketch29
pad29.Length = 150
pad29.Reversed = True
body29 = doc.addObject("PartDesign::Body", "Body028")

# Sketch on XY plane
sketch30 = body29.newObject("Sketcher::SketchObject", "Sketch029")
sketch30.AttachmentSupport = (doc.getObject("XY_Plane028"), [""])
sketch30.MapMode = "FlatFace"
add_polygon(sketch30, [(8400, -8700), (8400, -8900), (8600, -8900), (8600, -8700)])  # lines 0-3
sketch30.addConstraint([
    Sketcher.Constraint("Vertical", 0),
    Sketcher.Constraint("Horizontal", 1),
    Sketcher.Constraint("Vertical", 2),
    Sketcher.Constraint("Horizontal", 3),
    Sketcher.Constraint("Equal", 3, 0),
    Sketcher.Constraint("DistanceX", 1, 1, 1, 2, 200.0),
    Sketcher.Constraint("DistanceX", -1, 1, 0, 2, 8400.0),
    Sketcher.Constraint("DistanceY", 0, 2, -1, 1, 8900.0),
])
pad30 = body29.newObject("PartDesign::Pad", "Pad029")
pad30.Profile = sketch30
pad30.Length = 150
pad30.Reversed = True

doc.recompute()
